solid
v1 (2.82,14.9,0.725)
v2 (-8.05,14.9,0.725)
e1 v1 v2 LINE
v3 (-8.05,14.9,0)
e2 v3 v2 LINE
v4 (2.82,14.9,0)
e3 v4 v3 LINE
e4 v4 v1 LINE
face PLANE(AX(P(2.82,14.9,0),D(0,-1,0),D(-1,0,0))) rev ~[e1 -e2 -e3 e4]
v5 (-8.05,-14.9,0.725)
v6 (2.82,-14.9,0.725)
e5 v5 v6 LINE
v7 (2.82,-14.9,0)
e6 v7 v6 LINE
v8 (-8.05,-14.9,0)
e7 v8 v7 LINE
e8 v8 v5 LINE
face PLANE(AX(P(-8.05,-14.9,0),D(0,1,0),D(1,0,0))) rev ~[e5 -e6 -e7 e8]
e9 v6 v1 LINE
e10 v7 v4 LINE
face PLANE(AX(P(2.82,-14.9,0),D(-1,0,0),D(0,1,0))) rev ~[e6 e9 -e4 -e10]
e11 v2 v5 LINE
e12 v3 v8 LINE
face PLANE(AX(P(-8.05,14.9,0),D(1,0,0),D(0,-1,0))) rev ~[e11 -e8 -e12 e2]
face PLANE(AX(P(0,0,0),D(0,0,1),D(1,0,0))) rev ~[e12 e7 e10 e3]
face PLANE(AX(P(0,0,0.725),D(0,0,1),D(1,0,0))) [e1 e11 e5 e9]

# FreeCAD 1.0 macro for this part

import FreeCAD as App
import Part
import Sketcher


def add_polygon(sketch, points):
    """Adds a closed chain of lines whose ends are joined by coincident constraints."""
    first, n = sketch.GeometryCount, len(points)
    for a, b in zip(points, points[1:] + points[:1]):
        sketch.addGeometry(Part.LineSegment(App.Vector(*a, 0), App.Vector(*b, 0)), False)
    for i in range(n):
        sketch.addConstraint(Sketcher.Constraint("Coincident", first + i, 2, first + (i + 1) % n, 1))

doc = App.newDocument("Part")
body = doc.addObject("PartDesign::Body", "Body")

# Sketch on XY plane
sketch1 = body.newObject("Sketcher::SketchObject", "Sketch")
sketch1.AttachmentSupport = (doc.getObject("XY_Plane"), [""])
sketch1.MapMode = "FlatFace"
add_polygon(sketch1, [(3, -15), (3, 15), (-8, 15), (-8, -15)])  # lines 0-3
sketch1.addConstraint([
    Sketcher.Constraint("Vertical", 0),
    Sketcher.Constraint("Horizontal", 1),
    Sketcher.Constraint("Vertical", 2),
    Sketcher.Constraint("Horizontal", 3),
    Sketcher.Constraint("DistanceY", 0, 1, 0, 2, 29.8),
    Sketcher.Constraint("DistanceX", 1, 2, 1, 1, 10.87),
    Sketcher.Constraint("DistanceY", -1, 1, 0, 2, 14.9),
    Sketcher.Constraint("DistanceX", -1, 1, 0, 2, 2.82),
])
pad1 = body.newObject("PartDesign::Pad", "Pad")
pad1.Profile = sketch1
pad1.Length = 0.725

doc.recompute()
